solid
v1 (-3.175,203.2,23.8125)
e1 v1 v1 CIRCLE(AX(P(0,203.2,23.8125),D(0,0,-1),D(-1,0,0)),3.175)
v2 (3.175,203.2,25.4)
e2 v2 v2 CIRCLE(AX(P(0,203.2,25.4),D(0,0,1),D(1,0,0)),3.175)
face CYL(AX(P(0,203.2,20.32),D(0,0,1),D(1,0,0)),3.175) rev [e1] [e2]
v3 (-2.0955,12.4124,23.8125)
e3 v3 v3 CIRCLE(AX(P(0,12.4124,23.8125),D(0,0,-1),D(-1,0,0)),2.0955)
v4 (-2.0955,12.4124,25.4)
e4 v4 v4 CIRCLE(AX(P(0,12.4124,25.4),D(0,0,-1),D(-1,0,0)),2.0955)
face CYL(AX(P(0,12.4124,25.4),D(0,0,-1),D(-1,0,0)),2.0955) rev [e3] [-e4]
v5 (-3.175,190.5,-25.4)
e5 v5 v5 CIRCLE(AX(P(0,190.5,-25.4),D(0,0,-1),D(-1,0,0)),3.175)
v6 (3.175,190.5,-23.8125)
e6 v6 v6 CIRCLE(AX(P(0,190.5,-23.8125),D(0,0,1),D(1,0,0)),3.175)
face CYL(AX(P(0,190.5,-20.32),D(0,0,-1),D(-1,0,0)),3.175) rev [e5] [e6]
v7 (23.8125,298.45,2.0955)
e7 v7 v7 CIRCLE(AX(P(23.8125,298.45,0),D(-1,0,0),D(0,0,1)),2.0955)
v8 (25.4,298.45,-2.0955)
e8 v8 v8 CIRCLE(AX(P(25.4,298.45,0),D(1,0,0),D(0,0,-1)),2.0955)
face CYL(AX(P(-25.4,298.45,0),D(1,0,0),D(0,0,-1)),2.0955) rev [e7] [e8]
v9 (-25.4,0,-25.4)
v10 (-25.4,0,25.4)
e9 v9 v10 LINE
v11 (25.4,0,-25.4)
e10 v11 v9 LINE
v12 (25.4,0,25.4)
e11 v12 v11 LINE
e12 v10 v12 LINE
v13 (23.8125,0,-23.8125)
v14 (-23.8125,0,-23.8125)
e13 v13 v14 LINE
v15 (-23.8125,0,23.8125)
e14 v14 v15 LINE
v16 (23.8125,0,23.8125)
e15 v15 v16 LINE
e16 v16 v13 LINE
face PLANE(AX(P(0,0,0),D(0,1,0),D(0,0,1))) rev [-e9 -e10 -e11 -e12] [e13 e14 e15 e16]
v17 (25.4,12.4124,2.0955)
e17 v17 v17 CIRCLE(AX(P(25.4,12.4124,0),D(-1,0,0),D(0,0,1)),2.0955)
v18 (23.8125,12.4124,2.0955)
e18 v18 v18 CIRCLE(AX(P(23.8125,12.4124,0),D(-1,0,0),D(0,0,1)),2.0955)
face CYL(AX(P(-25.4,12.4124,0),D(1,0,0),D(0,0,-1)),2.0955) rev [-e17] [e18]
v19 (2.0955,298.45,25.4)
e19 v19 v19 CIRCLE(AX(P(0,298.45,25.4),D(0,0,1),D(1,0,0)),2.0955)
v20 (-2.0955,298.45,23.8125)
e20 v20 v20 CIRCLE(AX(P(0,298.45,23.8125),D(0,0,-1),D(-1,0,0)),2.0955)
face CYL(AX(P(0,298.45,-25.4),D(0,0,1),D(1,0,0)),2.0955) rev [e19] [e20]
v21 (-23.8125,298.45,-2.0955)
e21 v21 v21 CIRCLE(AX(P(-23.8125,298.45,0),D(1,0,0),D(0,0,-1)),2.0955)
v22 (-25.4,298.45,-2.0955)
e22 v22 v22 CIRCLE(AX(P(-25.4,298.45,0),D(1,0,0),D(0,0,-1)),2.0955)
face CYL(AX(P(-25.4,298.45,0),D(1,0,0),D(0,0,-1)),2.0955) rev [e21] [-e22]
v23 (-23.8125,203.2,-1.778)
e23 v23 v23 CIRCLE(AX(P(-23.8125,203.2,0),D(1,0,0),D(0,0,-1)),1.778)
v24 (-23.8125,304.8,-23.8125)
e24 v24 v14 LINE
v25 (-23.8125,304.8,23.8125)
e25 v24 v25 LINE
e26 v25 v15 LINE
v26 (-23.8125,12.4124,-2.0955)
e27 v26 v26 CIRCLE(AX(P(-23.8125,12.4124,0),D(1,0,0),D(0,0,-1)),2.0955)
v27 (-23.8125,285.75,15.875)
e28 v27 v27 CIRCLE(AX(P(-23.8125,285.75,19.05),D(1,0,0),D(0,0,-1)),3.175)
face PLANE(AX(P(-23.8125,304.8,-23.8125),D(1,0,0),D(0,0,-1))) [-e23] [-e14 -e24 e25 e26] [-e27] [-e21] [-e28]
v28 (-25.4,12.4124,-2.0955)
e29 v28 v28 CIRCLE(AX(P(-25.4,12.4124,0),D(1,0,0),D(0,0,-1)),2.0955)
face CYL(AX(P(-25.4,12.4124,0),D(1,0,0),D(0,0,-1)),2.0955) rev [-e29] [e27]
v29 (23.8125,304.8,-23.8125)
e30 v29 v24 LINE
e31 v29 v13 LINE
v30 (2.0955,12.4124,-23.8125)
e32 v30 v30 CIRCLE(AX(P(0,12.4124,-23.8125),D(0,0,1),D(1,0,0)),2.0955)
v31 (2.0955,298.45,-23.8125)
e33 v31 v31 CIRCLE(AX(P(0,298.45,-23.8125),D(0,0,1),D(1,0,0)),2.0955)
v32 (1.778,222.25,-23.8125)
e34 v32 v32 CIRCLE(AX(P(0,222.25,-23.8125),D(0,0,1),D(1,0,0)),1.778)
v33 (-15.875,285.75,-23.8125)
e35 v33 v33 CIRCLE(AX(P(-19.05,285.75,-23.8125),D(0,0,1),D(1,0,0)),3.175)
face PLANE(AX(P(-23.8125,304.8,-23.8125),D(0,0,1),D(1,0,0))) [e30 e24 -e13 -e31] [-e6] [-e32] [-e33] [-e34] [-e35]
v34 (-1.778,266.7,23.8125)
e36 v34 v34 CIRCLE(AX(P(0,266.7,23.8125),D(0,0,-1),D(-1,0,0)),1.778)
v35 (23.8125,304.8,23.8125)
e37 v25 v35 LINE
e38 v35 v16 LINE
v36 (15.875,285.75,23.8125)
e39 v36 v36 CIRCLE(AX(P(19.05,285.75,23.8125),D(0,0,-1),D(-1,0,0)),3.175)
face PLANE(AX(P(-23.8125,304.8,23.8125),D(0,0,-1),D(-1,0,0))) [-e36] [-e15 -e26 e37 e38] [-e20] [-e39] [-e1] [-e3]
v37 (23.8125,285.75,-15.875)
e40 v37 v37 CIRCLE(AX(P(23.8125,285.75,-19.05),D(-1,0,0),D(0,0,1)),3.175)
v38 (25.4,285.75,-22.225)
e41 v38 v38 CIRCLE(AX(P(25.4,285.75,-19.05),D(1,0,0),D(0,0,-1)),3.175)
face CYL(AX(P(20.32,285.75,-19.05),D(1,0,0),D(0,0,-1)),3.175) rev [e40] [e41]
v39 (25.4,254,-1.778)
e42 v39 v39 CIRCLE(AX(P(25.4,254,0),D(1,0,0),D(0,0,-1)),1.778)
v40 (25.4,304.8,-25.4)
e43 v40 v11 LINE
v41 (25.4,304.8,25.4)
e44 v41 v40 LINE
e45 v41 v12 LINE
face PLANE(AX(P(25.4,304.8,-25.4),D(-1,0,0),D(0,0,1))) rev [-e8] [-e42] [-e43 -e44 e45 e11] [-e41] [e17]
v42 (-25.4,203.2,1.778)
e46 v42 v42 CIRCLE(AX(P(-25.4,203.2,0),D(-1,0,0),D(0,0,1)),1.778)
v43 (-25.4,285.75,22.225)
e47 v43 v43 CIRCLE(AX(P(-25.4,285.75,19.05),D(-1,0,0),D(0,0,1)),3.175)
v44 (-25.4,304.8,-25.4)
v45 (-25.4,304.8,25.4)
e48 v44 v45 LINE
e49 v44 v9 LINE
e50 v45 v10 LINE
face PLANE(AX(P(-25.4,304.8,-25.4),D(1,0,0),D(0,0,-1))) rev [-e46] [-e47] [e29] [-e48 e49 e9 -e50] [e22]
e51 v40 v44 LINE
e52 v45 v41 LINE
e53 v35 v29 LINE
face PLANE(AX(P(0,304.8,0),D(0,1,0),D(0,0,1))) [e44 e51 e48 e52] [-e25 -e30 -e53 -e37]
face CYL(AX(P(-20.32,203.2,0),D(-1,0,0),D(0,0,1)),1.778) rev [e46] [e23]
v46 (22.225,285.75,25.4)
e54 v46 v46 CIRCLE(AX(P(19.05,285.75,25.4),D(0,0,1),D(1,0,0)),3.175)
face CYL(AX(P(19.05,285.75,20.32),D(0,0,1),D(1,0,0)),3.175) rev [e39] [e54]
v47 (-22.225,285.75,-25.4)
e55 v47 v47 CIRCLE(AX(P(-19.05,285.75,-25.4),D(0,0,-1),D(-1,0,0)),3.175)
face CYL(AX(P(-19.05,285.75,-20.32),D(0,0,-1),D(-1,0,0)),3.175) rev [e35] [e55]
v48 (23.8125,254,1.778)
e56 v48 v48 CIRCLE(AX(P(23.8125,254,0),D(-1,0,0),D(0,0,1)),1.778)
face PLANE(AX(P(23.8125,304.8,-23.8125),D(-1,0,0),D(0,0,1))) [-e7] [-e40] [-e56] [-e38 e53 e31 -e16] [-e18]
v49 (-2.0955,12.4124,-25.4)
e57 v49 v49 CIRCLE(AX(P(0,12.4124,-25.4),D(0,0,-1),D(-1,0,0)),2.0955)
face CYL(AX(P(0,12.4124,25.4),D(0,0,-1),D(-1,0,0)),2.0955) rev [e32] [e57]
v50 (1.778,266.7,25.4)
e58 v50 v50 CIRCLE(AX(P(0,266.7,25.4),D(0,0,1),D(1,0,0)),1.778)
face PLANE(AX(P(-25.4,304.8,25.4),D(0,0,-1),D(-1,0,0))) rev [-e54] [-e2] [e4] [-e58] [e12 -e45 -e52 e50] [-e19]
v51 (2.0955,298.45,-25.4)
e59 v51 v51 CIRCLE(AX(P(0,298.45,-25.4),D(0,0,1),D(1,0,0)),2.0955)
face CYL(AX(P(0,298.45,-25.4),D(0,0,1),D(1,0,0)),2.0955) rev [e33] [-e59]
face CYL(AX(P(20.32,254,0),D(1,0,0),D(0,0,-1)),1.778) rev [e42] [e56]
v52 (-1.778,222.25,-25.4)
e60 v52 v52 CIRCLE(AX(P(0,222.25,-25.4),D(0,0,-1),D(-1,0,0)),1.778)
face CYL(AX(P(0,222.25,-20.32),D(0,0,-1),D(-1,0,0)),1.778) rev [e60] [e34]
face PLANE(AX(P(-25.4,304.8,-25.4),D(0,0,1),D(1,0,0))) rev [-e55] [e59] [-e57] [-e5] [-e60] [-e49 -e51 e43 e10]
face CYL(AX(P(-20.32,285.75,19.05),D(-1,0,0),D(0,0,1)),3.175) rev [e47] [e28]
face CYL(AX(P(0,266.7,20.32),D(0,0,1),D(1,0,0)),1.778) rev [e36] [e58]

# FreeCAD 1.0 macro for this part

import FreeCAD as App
import Part
import Sketcher
from FreeCAD import Vector
Q = App.Units.Quantity


def add_polygon(sketch, points):
    """Adds a closed chain of lines whose ends are joined by coincident constraints."""
    first, n = sketch.GeometryCount, len(points)
    for a, b in zip(points, points[1:] + points[:1]):
        sketch.addGeometry(Part.LineSegment(App.Vector(*a, 0), App.Vector(*b, 0)), False)
    for i in range(n):
        sketch.addConstraint(Sketcher.Constraint("Coincident", first + i, 2, first + (i + 1) % n, 1))

doc = App.newDocument("Part")
body = doc.addObject("PartDesign::Body", "Body")

# Sketch on XZ plane
sketch1 = body.newObject("Sketcher::SketchObject", "Sketch")
sketch1.AttachmentSupport = (doc.getObject("XZ_Plane"), [""])
sketch1.MapMode = "FlatFace"
add_polygon(sketch1, [(-25.4, -25.4), (-25.4, 25.4), (25.4, 25.4), (25.4, -25.4)])  # lines 0-3
add_polygon(sketch1, [(23.8125, 23.8125), (-23.8125, 23.8125), (-23.8125, -23.8125), (23.8125, -23.8125)])  # lines 4-7
sketch1.addConstraint(Sketcher.Constraint("Vertical", 0))
sketch1.addConstraint(Sketcher.Constraint("Horizontal", 1))
sketch1.addConstraint(Sketcher.Constraint("Vertical", 2))
sketch1.addConstraint(Sketcher.Constraint("Horizontal", 3))
sketch1.addConstraint(Sketcher.Constraint("Horizontal", 4))
sketch1.addConstraint(Sketcher.Constraint("Vertical", 5))
sketch1.addConstraint(Sketcher.Constraint("Horizontal", 6))
sketch1.addConstraint(Sketcher.Constraint("Vertical", 7))
sketch1.addConstraint(Sketcher.Constraint("Symmetric", 0, 2, 2, 2, -1, 1))
sketch1.addConstraint(Sketcher.Constraint("Symmetric", 4, 2, 6, 2, -1, 1))
sketch1.addConstraint(Sketcher.Constraint("Equal", 3, 0))
sketch1.addConstraint(Sketcher.Constraint("Equal", 6, 5))
sketch1.addConstraint(Sketcher.Constraint("DistanceX", 1, 1, 1, 2, Q("2 in")))
sketch1.addConstraint(Sketcher.Constraint("DistanceX", 4, 2, 4, 1, Q("1.875 in")))
pad1 = body.newObject("PartDesign::Pad", "Pad")
pad1.Profile = sketch1
pad1.Length = Q("12 in")
pad1.Reversed = True

# Sketch on YZ plane
sketch2 = body.newObject("Sketcher::SketchObject", "Sketch001")
sketch2.AttachmentSupport = (doc.getObject("YZ_Plane"), [""])
sketch2.MapMode = "FlatFace"
sketch2.AttachmentOffset = App.Placement(Vector(0, 0, 1 * 25.4), App.Rotation())
sketch2.addGeometry(Part.Circle(Vector(12.4124, 0, 0), Vector(0, 0, 1), 2.0955), False)
sketch2.addConstraint(Sketcher.Constraint("PointOnObject", 0, 3, -1))
sketch2.addConstraint(Sketcher.Constraint("Diameter", 0, Q("0.165 in")))
sketch2.addConstraint(Sketcher.Constraint("DistanceX", -1, 1, 0, 3, 12.4124))
pocket1 = body.newObject("PartDesign::Pocket", "Pocket")
pocket1.Profile = sketch2
pocket1.Type = "ThroughAll"
pocket1.Midplane = True

# Sketch on XY plane
sketch3 = body.newObject("Sketcher::SketchObject", "Sketch002")
sketch3.AttachmentSupport = (doc.getObject("XY_Plane"), [""])
sketch3.MapMode = "FlatFace"
sketch3.AttachmentOffset = App.Placement(Vector(0, 0, -1 * 25.4), App.Rotation())
sketch3.addGeometry(Part.Circle(Vector(0, 12.4124, 0), Vector(0, 0, 1), 2.0955), False)
sketch3.addConstraint(Sketcher.Constraint("PointOnObject", 0, 3, -2))
sketch3.addConstraint(Sketcher.Constraint("Diameter", 0, Q("0.165 in")))
sketch3.addConstraint(Sketcher.Constraint("DistanceY", -1, 1, 0, 3, 12.4124))
pocket2 = body.newObject("PartDesign::Pocket", "Pocket001")
pocket2.Profile = sketch3
pocket2.Type = "ThroughAll"
pocket2.Midplane = True

# Sketch on YZ plane
sketch4 = body.newObject("Sketcher::SketchObject", "Sketch003")
sketch4.AttachmentSupport = (doc.getObject("YZ_Plane"), [""])
sketch4.MapMode = "FlatFace"
sketch4.AttachmentOffset = App.Placement(Vector(0, 0, 1 * 25.4), App.Rotation())
sketch4.addGeometry(Part.Circle(Vector(298.45, 0, 0), Vector(0, 0, 1), 2.0955), False)
sketch4.addConstraint(Sketcher.Constraint("PointOnObject", 0, 3, -1))
sketch4.addConstraint(Sketcher.Constraint("Diameter", 0, Q("0.165 in")))
sketch4.addConstraint(Sketcher.Constraint("DistanceX", -1, 1, 0, 3, Q("11.75 in")))
pocket3 = body.newObject("PartDesign::Pocket", "Pocket002")
pocket3.Profile = sketch4
pocket3.Type = "ThroughAll"

# Sketch on XY plane
sketch5 = body.newObject("Sketcher::SketchObject", "Sketch004")
sketch5.AttachmentSupport = (doc.getObject("XY_Plane"), [""])
sketch5.MapMode = "FlatFace"
sketch5.AttachmentOffset = App.Placement(Vector(0, 0, 1 * 25.4), App.Rotation())
sketch5.addGeometry(Part.Circle(Vector(0, 298.45, 0), Vector(0, 0, 1), 2.0955), False)
sketch5.addConstraint(Sketcher.Constraint("PointOnObject", 0, 3, -2))
sketch5.addConstraint(Sketcher.Constraint("Diameter", 0, Q("0.165 in")))
sketch5.addConstraint(Sketcher.Constraint("DistanceY", -1, 1, 0, 3, Q("11.75 in")))
pocket4 = body.newObject("PartDesign::Pocket", "Pocket003")
pocket4.Profile = sketch5
pocket4.Type = "ThroughAll"

# Sketch on XY plane
sketch6 = body.newObject("Sketcher::SketchObject", "Sketch005")
sketch6.AttachmentSupport = (doc.getObject("XY_Plane"), [""])
sketch6.MapMode = "FlatFace"
sketch6.AttachmentOffset = App.Placement(Vector(0, 0, 1 * 25.4), App.Rotation())
sketch6.addGeometry(Part.Circle(Vector(19.05, 285.75, 0), Vector(0, 0, 1), 3.175), False)
sketch6.addConstraint(Sketcher.Constraint("Diameter", 0, Q("0.25 in")))
sketch6.addConstraint(Sketcher.Constraint("DistanceX", -1, 1, 0, 3, Q("0.75 in")))
sketch6.addConstraint(Sketcher.Constraint("DistanceY", -1, 1, 0, 3, Q("11.25 in")))
pocket5 = body.newObject("PartDesign::Pocket", "Pocket004")
pocket5.Profile = sketch6
pocket5.Length = Q("0.2 in")

# Sketch on YZ plane
sketch7 = body.newObject("Sketcher::SketchObject", "Sketch006")
sketch7.AttachmentSupport = (doc.getObject("YZ_Plane"), [""])
sketch7.MapMode = "FlatFace"
sketch7.AttachmentOffset = App.Placement(Vector(0, 0, -1 * 25.4), App.Rotation())
sketch7.addGeometry(Part.Circle(Vector(285.75, 19.05, 0), Vector(0, 0, 1), 3.175), False)
sketch7.addConstraint(Sketcher.Constraint("Diameter", 0, Q("0.25 in")))
sketch7.addConstraint(Sketcher.Constraint("DistanceX", -1, 1, 0, 3, Q("11.25 in")))
sketch7.addConstraint(Sketcher.Constraint("DistanceY", -1, 1, 0, 3, Q("0.75 in")))
pocket6 = body.newObject("PartDesign::Pocket", "Pocket005")
pocket6.Profile = sketch7
pocket6.Length = Q("0.2 in")
pocket6.Reversed = True

# Sketch on XY plane
sketch8 = body.newObject("Sketcher::SketchObject", "Sketch007")
sketch8.AttachmentSupport = (doc.getObject("XY_Plane"), [""])
sketch8.MapMode = "FlatFace"
sketch8.AttachmentOffset = App.Placement(Vector(0, 0, -1 * 25.4), App.Rotation())
sketch8.addGeometry(Part.Circle(Vector(-19.05, 285.75, 0), Vector(0, 0, 1), 3.175), False)
sketch8.addConstraint(Sketcher.Constraint("Diameter", 0, Q("0.25 in")))
sketch8.addConstraint(Sketcher.Constraint("DistanceX", 0, 3, -1, 1, Q("0.75 in")))
sketch8.addConstraint(Sketcher.Constraint("DistanceY", -1, 1, 0, 3, Q("11.25 in")))
pocket7 = body.newObject("PartDesign::Pocket", "Pocket006")
pocket7.Profile = sketch8
pocket7.Length = Q("0.2 in")
pocket7.Reversed = True

# Sketch on YZ plane
sketch9 = body.newObject("Sketcher::SketchObject", "Sketch008")
sketch9.AttachmentSupport = (doc.getObject("YZ_Plane"), [""])
sketch9.MapMode = "FlatFace"
sketch9.AttachmentOffset = App.Placement(Vector(0, 0, 1 * 25.4), App.Rotation())
sketch9.addGeometry(Part.Circle(Vector(285.75, -19.05, 0), Vector(0, 0, 1), 3.175), False)
sketch9.addConstraint(Sketcher.Constraint("Diameter", 0, Q("0.25 in")))
sketch9.addConstraint(Sketcher.Constraint("DistanceX", -1, 1, 0, 3, Q("11.25 in")))
sketch9.addConstraint(Sketcher.Constraint("DistanceY", 0, 3, -1, 1, Q("0.75 in")))
pocket8 = body.newObject("PartDesign::Pocket", "Pocket007")
pocket8.Profile = sketch9
pocket8.Length = Q("0.2 in")

# Sketch on XY plane
sketch10 = body.newObject("Sketcher::SketchObject", "Sketch009")
sketch10.AttachmentSupport = (doc.getObject("XY_Plane"), [""])
sketch10.MapMode = "FlatFace"
sketch10.AttachmentOffset = App.Placement(Vector(0, 0, -1 * 25.4), App.Rotation())
sketch10.addGeometry(Part.Circle(Vector(0, 222.25, 0), Vector(0, 0, 1), 1.778), False)
sketch10.addGeometry(Part.Circle(Vector(0, 190.5, 0), Vector(0, 0, 1), 3.175), False)
sketch10.addConstraint(Sketcher.Constraint("PointOnObject", 0, 3, -2))
sketch10.addConstraint(Sketcher.Constraint("PointOnObject", 1, 3, -2))
sketch10.addConstraint(Sketcher.Constraint("Diameter", 0, Q("0.14 in")))
sketch10.addConstraint(Sketcher.Constraint("Diameter", 1, Q("0.25 in")))
sketch10.addConstraint(Sketcher.Constraint("DistanceY", -1, 1, 1, 3, Q("7.5 in")))
sketch10.addConstraint(Sketcher.Constraint("DistanceY", -1, 1, 0, 3, Q("8.75 in")))
pocket9 = body.newObject("PartDesign::Pocket", "Pocket008")
pocket9.Profile = sketch10
pocket9.Length = Q("0.2 in")
pocket9.Reversed = True

# Sketch on YZ plane
sketch11 = body.newObject("Sketcher::SketchObject", "Sketch010")
sketch11.AttachmentSupport = (doc.getObject("YZ_Plane"), [""])
sketch11.MapMode = "FlatFace"
sketch11.AttachmentOffset = App.Placement(Vector(0, 0, 1 * 25.4), App.Rotation())
sketch11.addGeometry(Part.Circle(Vector(254, 0, 0), Vector(0, 0, 1), 1.778), False)
sketch11.addConstraint(Sketcher.Constraint("PointOnObject", 0, 3, -1))
sketch11.addConstraint(Sketcher.Constraint("Diameter", 0, Q("0.14 in")))
sketch11.addConstraint(Sketcher.Constraint("DistanceX", -1, 1, 0, 3, Q("10 in")))
pocket10 = body.newObject("PartDesign::Pocket", "Pocket009")
pocket10.Profile = sketch11
pocket10.Length = Q("0.2 in")

# Sketch on YZ plane
sketch12 = body.newObject("Sketcher::SketchObject", "Sketch011")
sketch12.AttachmentSupport = (doc.getObject("YZ_Plane"), [""])
sketch12.MapMode = "FlatFace"
sketch12.AttachmentOffset = App.Placement(Vector(0, 0, -1 * 25.4), App.Rotation())
sketch12.addGeometry(Part.Circle(Vector(203.2, 0, 0), Vector(0, 0, 1), 1.778), False)
sketch12.addConstraint(Sketcher.Constraint("PointOnObject", 0, 3, -1))
sketch12.addConstraint(Sketcher.Constraint("Diameter", 0, Q("0.14 in")))
sketch12.addConstraint(Sketcher.Constraint("DistanceX", -1, 1, 0, 3, Q("8 in")))
pocket11 = body.newObject("PartDesign::Pocket", "Pocket010")
pocket11.Profile = sketch12
pocket11.Length = Q("0.2 in")
pocket11.Reversed = True

# Sketch on XY plane
sketch13 = body.newObject("Sketcher::SketchObject", "Sketch012")
sketch13.AttachmentSupport = (doc.getObject("XY_Plane"), [""])
sketch13.MapMode = "FlatFace"
sketch13.AttachmentOffset = App.Placement(Vector(0, 0, 1 * 25.4), App.Rotation())
sketch13.addGeometry(Part.Circle(Vector(0, 266.7, 0), Vector(0, 0, 1), 1.778), False)
sketch13.addGeometry(Part.Circle(Vector(0, 203.2, 0), Vector(0, 0, 1), 3.175), False)
sketch13.addConstraint(Sketcher.Constraint("PointOnObject", 0, 3, -2))
sketch13.addConstraint(Sketcher.Constraint("PointOnObject", 1, 3, -2))
sketch13.addConstraint(Sketcher.Constraint("Diameter", 0, Q("0.14 in")))
sketch13.addConstraint(Sketcher.Constraint("Diameter", 1, Q("0.25 in")))
sketch13.addConstraint(Sketcher.Constraint("DistanceY", -1, 1, 1, 3, Q("8 in")))
sketch13.addConstraint(Sketcher.Constraint("DistanceY", -1, 1, 0, 3, Q("10.5 in")))
pocket12 = body.newObject("PartDesign::Pocket", "Pocket011")
pocket12.Profile = sketch13
pocket12.Length = Q("0.2 in")

doc.recompute()
